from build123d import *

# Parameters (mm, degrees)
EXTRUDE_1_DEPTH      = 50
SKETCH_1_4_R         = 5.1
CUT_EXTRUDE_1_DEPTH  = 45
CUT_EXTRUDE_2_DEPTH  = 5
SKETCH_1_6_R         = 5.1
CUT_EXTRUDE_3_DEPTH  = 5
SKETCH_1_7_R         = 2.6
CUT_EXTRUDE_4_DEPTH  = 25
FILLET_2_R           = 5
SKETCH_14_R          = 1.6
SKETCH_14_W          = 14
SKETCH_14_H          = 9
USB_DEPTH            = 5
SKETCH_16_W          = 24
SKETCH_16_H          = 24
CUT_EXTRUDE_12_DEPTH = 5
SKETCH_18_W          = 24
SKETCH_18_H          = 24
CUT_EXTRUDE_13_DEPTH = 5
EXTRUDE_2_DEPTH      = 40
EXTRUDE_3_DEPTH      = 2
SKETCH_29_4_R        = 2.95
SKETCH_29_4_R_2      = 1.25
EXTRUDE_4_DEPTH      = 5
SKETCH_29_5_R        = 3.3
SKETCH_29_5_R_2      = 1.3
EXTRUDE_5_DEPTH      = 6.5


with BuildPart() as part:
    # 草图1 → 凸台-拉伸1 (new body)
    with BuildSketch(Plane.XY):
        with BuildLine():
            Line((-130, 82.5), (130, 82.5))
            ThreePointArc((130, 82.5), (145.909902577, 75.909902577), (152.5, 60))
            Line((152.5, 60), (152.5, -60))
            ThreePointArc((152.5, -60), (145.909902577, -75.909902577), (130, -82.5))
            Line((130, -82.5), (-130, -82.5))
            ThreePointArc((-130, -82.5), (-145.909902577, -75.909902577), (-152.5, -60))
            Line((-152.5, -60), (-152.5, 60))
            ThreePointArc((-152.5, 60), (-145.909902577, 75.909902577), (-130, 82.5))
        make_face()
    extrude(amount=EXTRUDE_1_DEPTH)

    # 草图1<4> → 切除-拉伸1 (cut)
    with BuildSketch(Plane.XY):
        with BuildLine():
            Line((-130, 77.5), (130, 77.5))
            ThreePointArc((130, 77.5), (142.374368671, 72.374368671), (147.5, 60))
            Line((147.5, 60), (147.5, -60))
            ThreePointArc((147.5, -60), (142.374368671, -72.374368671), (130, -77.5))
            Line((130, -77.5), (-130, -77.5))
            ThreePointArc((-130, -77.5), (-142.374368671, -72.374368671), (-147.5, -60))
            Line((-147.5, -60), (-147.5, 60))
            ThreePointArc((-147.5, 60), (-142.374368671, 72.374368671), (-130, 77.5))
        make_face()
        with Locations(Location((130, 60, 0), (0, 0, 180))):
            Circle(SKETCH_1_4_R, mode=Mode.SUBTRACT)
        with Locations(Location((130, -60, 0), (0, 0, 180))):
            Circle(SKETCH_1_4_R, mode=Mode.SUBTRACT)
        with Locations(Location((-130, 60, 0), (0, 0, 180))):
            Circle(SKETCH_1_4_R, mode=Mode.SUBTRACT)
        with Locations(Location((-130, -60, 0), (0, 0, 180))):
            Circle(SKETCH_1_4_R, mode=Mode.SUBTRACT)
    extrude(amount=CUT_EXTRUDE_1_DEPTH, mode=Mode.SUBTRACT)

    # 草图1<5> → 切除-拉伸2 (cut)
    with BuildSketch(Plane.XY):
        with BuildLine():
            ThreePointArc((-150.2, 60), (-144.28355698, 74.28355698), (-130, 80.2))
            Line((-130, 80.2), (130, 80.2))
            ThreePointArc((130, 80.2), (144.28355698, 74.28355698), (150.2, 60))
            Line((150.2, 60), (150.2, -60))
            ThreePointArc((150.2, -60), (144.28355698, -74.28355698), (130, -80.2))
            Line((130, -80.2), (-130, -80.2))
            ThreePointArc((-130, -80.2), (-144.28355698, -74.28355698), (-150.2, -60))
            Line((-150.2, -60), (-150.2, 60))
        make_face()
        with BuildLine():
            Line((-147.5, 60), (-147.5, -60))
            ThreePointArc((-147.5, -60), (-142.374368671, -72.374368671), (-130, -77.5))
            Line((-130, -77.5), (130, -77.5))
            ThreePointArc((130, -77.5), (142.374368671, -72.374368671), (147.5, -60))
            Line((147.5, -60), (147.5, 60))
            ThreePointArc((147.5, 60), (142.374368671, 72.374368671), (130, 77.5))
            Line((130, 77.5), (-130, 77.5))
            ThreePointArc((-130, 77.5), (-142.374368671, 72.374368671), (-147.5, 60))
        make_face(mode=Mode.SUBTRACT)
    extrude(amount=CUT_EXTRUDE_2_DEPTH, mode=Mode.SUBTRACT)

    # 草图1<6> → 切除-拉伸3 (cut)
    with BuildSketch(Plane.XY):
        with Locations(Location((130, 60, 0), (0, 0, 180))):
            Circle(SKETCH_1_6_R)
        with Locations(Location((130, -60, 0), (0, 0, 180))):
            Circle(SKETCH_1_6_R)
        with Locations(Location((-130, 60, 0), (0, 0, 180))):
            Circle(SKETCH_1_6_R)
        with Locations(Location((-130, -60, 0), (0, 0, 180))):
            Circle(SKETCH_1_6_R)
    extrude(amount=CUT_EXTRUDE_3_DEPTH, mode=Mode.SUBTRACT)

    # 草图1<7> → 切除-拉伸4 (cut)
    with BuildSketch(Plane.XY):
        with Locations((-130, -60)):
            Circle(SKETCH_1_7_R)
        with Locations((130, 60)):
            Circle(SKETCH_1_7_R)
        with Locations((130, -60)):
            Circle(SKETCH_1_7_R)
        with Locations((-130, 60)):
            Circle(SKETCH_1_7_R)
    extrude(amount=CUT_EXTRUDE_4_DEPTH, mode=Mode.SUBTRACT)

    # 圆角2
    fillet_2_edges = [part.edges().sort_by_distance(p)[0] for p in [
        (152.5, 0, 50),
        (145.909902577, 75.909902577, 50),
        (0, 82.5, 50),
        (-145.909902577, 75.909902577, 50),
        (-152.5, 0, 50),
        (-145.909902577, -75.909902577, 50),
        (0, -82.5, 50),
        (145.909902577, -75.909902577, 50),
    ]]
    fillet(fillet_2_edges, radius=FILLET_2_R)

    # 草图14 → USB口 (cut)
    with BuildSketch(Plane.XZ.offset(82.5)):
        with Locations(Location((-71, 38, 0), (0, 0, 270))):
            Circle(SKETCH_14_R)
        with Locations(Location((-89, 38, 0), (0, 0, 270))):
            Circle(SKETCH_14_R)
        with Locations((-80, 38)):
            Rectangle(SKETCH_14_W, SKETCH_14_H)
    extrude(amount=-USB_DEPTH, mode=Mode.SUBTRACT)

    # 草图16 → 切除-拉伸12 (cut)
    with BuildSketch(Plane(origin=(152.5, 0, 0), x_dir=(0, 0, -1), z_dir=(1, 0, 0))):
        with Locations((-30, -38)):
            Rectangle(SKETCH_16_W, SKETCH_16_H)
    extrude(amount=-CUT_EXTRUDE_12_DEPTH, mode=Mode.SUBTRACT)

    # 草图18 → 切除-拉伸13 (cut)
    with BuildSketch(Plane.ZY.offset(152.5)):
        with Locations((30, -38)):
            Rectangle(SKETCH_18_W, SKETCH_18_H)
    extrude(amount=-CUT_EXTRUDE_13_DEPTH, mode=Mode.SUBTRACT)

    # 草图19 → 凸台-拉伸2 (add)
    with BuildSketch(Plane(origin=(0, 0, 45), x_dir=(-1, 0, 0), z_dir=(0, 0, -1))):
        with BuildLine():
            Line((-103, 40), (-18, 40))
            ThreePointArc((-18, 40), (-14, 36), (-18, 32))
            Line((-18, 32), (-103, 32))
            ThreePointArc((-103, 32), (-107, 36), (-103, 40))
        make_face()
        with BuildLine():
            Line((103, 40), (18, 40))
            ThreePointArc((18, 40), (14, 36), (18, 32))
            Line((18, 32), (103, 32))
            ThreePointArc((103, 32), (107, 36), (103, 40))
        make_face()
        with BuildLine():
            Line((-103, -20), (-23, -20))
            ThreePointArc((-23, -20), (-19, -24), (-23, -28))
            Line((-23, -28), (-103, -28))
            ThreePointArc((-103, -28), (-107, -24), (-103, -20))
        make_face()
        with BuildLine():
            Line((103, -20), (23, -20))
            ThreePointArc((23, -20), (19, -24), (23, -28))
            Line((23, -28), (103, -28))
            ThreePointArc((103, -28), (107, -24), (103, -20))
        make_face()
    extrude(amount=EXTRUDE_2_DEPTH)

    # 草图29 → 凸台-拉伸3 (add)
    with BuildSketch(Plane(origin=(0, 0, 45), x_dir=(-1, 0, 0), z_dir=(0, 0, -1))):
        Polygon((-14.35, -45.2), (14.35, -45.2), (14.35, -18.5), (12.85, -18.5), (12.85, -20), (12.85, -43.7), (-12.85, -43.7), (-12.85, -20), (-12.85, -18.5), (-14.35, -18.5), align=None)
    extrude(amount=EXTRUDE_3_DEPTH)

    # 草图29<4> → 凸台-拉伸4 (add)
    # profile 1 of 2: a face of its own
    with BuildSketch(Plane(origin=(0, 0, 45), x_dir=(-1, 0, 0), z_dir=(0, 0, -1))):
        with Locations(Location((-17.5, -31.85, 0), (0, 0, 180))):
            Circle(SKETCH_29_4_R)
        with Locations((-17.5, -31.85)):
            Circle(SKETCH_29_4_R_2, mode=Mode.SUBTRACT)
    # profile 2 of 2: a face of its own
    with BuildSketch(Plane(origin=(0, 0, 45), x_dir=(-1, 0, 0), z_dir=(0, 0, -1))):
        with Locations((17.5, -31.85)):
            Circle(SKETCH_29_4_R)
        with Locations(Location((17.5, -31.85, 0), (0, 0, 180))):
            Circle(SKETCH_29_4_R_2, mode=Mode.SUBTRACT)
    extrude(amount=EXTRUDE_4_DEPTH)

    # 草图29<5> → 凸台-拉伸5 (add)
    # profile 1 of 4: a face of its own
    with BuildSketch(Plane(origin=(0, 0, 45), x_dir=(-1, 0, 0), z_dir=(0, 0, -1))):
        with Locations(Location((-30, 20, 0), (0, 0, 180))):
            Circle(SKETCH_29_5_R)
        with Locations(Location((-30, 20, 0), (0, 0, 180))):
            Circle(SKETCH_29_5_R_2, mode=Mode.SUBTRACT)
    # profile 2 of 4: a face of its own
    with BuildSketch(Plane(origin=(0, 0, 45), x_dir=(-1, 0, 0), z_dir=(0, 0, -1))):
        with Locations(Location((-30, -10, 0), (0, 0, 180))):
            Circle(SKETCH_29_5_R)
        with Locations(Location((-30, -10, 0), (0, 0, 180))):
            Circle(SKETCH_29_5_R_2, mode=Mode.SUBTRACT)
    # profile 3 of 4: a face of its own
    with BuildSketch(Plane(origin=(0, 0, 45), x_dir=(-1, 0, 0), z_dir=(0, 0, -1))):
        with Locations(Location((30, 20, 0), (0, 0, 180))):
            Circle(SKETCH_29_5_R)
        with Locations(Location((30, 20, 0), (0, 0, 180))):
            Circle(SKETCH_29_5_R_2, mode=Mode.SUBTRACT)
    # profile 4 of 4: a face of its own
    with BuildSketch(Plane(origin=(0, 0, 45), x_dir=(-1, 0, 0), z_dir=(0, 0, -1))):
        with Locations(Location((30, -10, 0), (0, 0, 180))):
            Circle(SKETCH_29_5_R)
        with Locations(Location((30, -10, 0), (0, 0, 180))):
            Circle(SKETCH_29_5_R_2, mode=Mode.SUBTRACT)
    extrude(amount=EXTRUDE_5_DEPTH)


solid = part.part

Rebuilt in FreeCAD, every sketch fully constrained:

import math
import FreeCAD as App
import Part
import Sketcher

V = App.Vector
Q = App.Units.Quantity


def edges_at(feature, points):
    """Names of the edges that pass closest to the given points."""
    edges = feature.Shape.Edges
    near = lambda p: min(range(len(edges)), key=lambda i: edges[i].distToShape(Part.Vertex(*p))[0])
    return sorted({f"Edge{near(p) + 1}" for p in points})

doc = App.newDocument("Part")
body = doc.addObject("PartDesign::Body", "Body")

# Sketch on XY plane
sketch1 = body.newObject("Sketcher::SketchObject", "Sketch")
sketch1.AttachmentSupport = (doc.getObject("XY_Plane"), [""])
sketch1.MapMode = "FlatFace"
sketch1.addGeometry([
    Part.LineSegment(V(130, 82, 0), V(-130, 82, 0)),  # 0
    Part.ArcOfCircle(Part.Circle(V(-130, 60, 0), V(0, 0, 1), 22), math.radians(90), math.radians(180)),  # 1
    Part.LineSegment(V(-152, 60, 0), V(-152, -60, 0)),  # 2
    Part.ArcOfCircle(Part.Circle(V(-130, -60, 0), V(0, 0, 1), 22), math.radians(180), math.radians(270)),  # 3
    Part.LineSegment(V(-130, -82, 0), V(130, -82, 0)),  # 4
    Part.ArcOfCircle(Part.Circle(V(130, -60, 0), V(0, 0, 1), 22), math.radians(-90), math.radians(0)),  # 5
    Part.LineSegment(V(152, -60, 0), V(152, 60, 0)),  # 6
    Part.ArcOfCircle(Part.Circle(V(130, 60, 0), V(0, 0, 1), 22), math.radians(0), math.radians(90)),  # 7
], False)
sketch1.addConstraint([
    Sketcher.Constraint("Tangent", 0, 2, 1, 1),
    Sketcher.Constraint("Tangent", 1, 2, 2, 1),
    Sketcher.Constraint("Tangent", 2, 2, 3, 1),
    Sketcher.Constraint("Tangent", 3, 2, 4, 1),
    Sketcher.Constraint("Tangent", 4, 2, 5, 1),
    Sketcher.Constraint("Tangent", 5, 2, 6, 1),
    Sketcher.Constraint("Tangent", 6, 2, 7, 1),
    Sketcher.Constraint("Tangent", 7, 2, 0, 1),
    Sketcher.Constraint("Horizontal", 0),
    Sketcher.Constraint("Vertical", 2),
    Sketcher.Constraint("Horizontal", 4),
    Sketcher.Constraint("Vertical", 6),
    Sketcher.Constraint("Equal", 1, 3),
    Sketcher.Constraint("Equal", 3, 5),
    Sketcher.Constraint("Equal", 5, 7),
    Sketcher.Constraint("Symmetric", 1, 3, 5, 3, -1, 1),
    Sketcher.Constraint("Radius", 1, Q("22.5 mm")),
    Sketcher.Constraint("DistanceX", 0, 2, 0, 1, Q("260 mm")),
    Sketcher.Constraint("DistanceY", 2, 2, 2, 1, Q("120 mm")),
])
pad1 = body.newObject("PartDesign::Pad", "Pad")
pad1.Profile = sketch1
pad1.Length = 50

# Sketch on XY plane
sketch2 = body.newObject("Sketcher::SketchObject", "Sketch001")
sketch2.AttachmentSupport = (doc.getObject("XY_Plane"), [""])
sketch2.MapMode = "FlatFace"
sketch2.addGeometry([
    Part.LineSegment(V(130, 78, 0), V(-130, 78, 0)),  # 0
    Part.ArcOfCircle(Part.Circle(V(-130, 60, 0), V(0, 0, 1), 17), math.radians(90), math.radians(180)),  # 1
    Part.LineSegment(V(-148, 60, 0), V(-148, -60, 0)),  # 2
    Part.ArcOfCircle(Part.Circle(V(-130, -60, 0), V(0, 0, 1), 17), math.radians(180), math.radians(270)),  # 3
    Part.LineSegment(V(-130, -78, 0), V(130, -78, 0)),  # 4
    Part.ArcOfCircle(Part.Circle(V(130, -60, 0), V(0, 0, 1), 17), math.radians(-90), math.radians(0)),  # 5
    Part.LineSegment(V(148, -60, 0), V(148, 60, 0)),  # 6
    Part.ArcOfCircle(Part.Circle(V(130, 60, 0), V(0, 0, 1), 17), math.radians(0), math.radians(90)),  # 7
    Part.Circle(V(130, -60, 0), V(0, 0, 1), 5),  # 8
    Part.Circle(V(-130, -60, 0), V(0, 0, 1), 5),  # 9
    Part.Circle(V(130, 60, 0), V(0, 0, 1), 5),  # 10
    Part.Circle(V(-130, 60, 0), V(0, 0, 1), 5),  # 11
], False)
sketch2.addConstraint([
    Sketcher.Constraint("Tangent", 0, 2, 1, 1),
    Sketcher.Constraint("Tangent", 1, 2, 2, 1),
    Sketcher.Constraint("Tangent", 2, 2, 3, 1),
    Sketcher.Constraint("Tangent", 3, 2, 4, 1),
    Sketcher.Constraint("Tangent", 4, 2, 5, 1),
    Sketcher.Constraint("Tangent", 5, 2, 6, 1),
    Sketcher.Constraint("Tangent", 6, 2, 7, 1),
    Sketcher.Constraint("Tangent", 7, 2, 0, 1),
    Sketcher.Constraint("Horizontal", 0),
    Sketcher.Constraint("Vertical", 2),
    Sketcher.Constraint("Horizontal", 4),
    Sketcher.Constraint("Vertical", 6),
    Sketcher.Constraint("Coincident", 8, 3, 5, 3),
    Sketcher.Constraint("Coincident", 9, 3, 3, 3),
    Sketcher.Constraint("Coincident", 10, 3, 7, 3),
    Sketcher.Constraint("Coincident", 11, 3, 1, 3),
    Sketcher.Constraint("Equal", 1, 3),
    Sketcher.Constraint("Equal", 3, 5),
    Sketcher.Constraint("Equal", 5, 7),
    Sketcher.Constraint("Equal", 8, 9),
    Sketcher.Constraint("Equal", 9, 10),
    Sketcher.Constraint("Equal", 10, 11),
    Sketcher.Constraint("Symmetric", 1, 3, 5, 3, -1, 1),
    Sketcher.Constraint("Diameter", 8, Q("10.2 mm")),
    Sketcher.Constraint("Radius", 1, Q("17.5 mm")),
    Sketcher.Constraint("DistanceX", 0, 2, 0, 1, Q("260 mm")),
    Sketcher.Constraint("DistanceY", 2, 2, 2, 1, Q("120 mm")),
])
pocket1 = body.newObject("PartDesign::Pocket", "Pocket")
pocket1.Profile = sketch2
pocket1.Length = 45
pocket1.Reversed = True

# Sketch on XY plane
sketch3 = body.newObject("Sketcher::SketchObject", "Sketch002")
sketch3.AttachmentSupport = (doc.getObject("XY_Plane"), [""])
sketch3.MapMode = "FlatFace"
sketch3.addGeometry([
    Part.ArcOfCircle(Part.Circle(V(-130, 60, 0), V(0, 0, 1), 20), math.radians(90), math.radians(180)),  # 0
    Part.LineSegment(V(-150, 60, 0), V(-150, -60, 0)),  # 1
    Part.ArcOfCircle(Part.Circle(V(-130, -60, 0), V(0, 0, 1), 20), math.radians(180), math.radians(270)),  # 2
    Part.LineSegment(V(-130, -80, 0), V(130, -80, 0)),  # 3
    Part.ArcOfCircle(Part.Circle(V(130, -60, 0), V(0, 0, 1), 20), math.radians(-90), math.radians(0)),  # 4
    Part.LineSegment(V(150, -60, 0), V(150, 60, 0)),  # 5
    Part.ArcOfCircle(Part.Circle(V(130, 60, 0), V(0, 0, 1), 20), math.radians(0), math.radians(90)),  # 6
    Part.LineSegment(V(130, 80, 0), V(-130, 80, 0)),  # 7
    Part.ArcOfCircle(Part.Circle(V(-130, 60, 0), V(0, 0, 1), 17), math.radians(90), math.radians(180)),  # 8
    Part.LineSegment(V(-130, 78, 0), V(130, 78, 0)),  # 9
    Part.ArcOfCircle(Part.Circle(V(130, 60, 0), V(0, 0, 1), 17), math.radians(0), math.radians(90)),  # 10
    Part.LineSegment(V(148, 60, 0), V(148, -60, 0)),  # 11
    Part.ArcOfCircle(Part.Circle(V(130, -60, 0), V(0, 0, 1), 17), math.radians(-90), math.radians(0)),  # 12
    Part.LineSegment(V(130, -78, 0), V(-130, -78, 0)),  # 13
    Part.ArcOfCircle(Part.Circle(V(-130, -60, 0), V(0, 0, 1), 17), math.radians(180), math.radians(270)),  # 14
    Part.LineSegment(V(-148, -60, 0), V(-148, 60, 0)),  # 15
], False)
sketch3.addConstraint([
    Sketcher.Constraint("Tangent", 0, 2, 1, 1),
    Sketcher.Constraint("Tangent", 1, 2, 2, 1),
    Sketcher.Constraint("Tangent", 2, 2, 3, 1),
    Sketcher.Constraint("Tangent", 3, 2, 4, 1),
    Sketcher.Constraint("Tangent", 4, 2, 5, 1),
    Sketcher.Constraint("Tangent", 5, 2, 6, 1),
    Sketcher.Constraint("Tangent", 6, 2, 7, 1),
    Sketcher.Constraint("Tangent", 7, 2, 0, 1),
    Sketcher.Constraint("Tangent", 8, 1, 9, 1),
    Sketcher.Constraint("Tangent", 9, 2, 10, 2),
    Sketcher.Constraint("Tangent", 10, 1, 11, 1),
    Sketcher.Constraint("Tangent", 11, 2, 12, 2),
    Sketcher.Constraint("Tangent", 12, 1, 13, 1),
    Sketcher.Constraint("Tangent", 13, 2, 14, 2),
    Sketcher.Constraint("Tangent", 14, 1, 15, 1),
    Sketcher.Constraint("Tangent", 15, 2, 8, 2),
    Sketcher.Constraint("Vertical", 1),
    Sketcher.Constraint("Horizontal", 3),
    Sketcher.Constraint("Vertical", 5),
    Sketcher.Constraint("Horizontal", 7),
    Sketcher.Constraint("Horizontal", 9),
    Sketcher.Constraint("Vertical", 11),
    Sketcher.Constraint("Horizontal", 13),
    Sketcher.Constraint("Vertical", 15),
    Sketcher.Constraint("Coincident", 8, 3, 0, 3),
    Sketcher.Constraint("Coincident", 10, 3, 6, 3),
    Sketcher.Constraint("Coincident", 12, 3, 4, 3),
    Sketcher.Constraint("Equal", 0, 2),
    Sketcher.Constraint("Equal", 2, 4),
    Sketcher.Constraint("Equal", 4, 6),
    Sketcher.Constraint("Equal", 12, 14),
    Sketcher.Constraint("Symmetric", 0, 3, 4, 3, -1, 1),
    Sketcher.Constraint("Radius", 0, Q("20.2 mm")),
    Sketcher.Constraint("Radius", 8, Q("17.5 mm")),
    Sketcher.Constraint("DistanceX", 3, 1, 3, 2, Q("260 mm")),
    Sketcher.Constraint("DistanceY", 1, 2, 1, 1, Q("120 mm")),
])
pocket2 = body.newObject("PartDesign::Pocket", "Pocket001")
pocket2.Profile = sketch3
pocket2.Length = 5
pocket2.Reversed = True

# Sketch on XY plane
sketch4 = body.newObject("Sketcher::SketchObject", "Sketch003")
sketch4.AttachmentSupport = (doc.getObject("XY_Plane"), [""])
sketch4.MapMode = "FlatFace"
sketch4.addGeometry([
    Part.Circle(V(130, 60, 0), V(0, 0, 1), 5),
    Part.Circle(V(130, -60, 0), V(0, 0, 1), 5),
    Part.Circle(V(-130, 60, 0), V(0, 0, 1), 5),
    Part.Circle(V(-130, -60, 0), V(0, 0, 1), 5),
], False)
sketch4.addConstraint([
    Sketcher.Constraint("Equal", 0, 1),
    Sketcher.Constraint("Equal", 1, 2),
    Sketcher.Constraint("Equal", 2, 3),
    Sketcher.Constraint("Symmetric", 1, 3, 2, 3, -1, 1),
    Sketcher.Constraint("Symmetric", 0, 3, 3, 3, -1, 1),
    Sketcher.Constraint("Symmetric", 0, 3, 2, 3, -2),
    Sketcher.Constraint("Diameter", 0, Q("10.2 mm")),
    Sketcher.Constraint("DistanceX", -1, 1, 0, 3, Q("130 mm")),
    Sketcher.Constraint("DistanceY", -1, 1, 0, 3, Q("60 mm")),
])
pocket3 = body.newObject("PartDesign::Pocket", "Pocket002")
pocket3.Profile = sketch4
pocket3.Length = 5
pocket3.Reversed = True

# Sketch on XY plane
sketch5 = body.newObject("Sketcher::SketchObject", "Sketch004")
sketch5.AttachmentSupport = (doc.getObject("XY_Plane"), [""])
sketch5.MapMode = "FlatFace"
sketch5.addGeometry([
    Part.Circle(V(-130, -60, 0), V(0, 0, 1), 2.6),
    Part.Circle(V(130, 60, 0), V(0, 0, 1), 2.6),
    Part.Circle(V(130, -60, 0), V(0, 0, 1), 2.6),
    Part.Circle(V(-130, 60, 0), V(0, 0, 1), 2.6),
], False)
sketch5.addConstraint([
    Sketcher.Constraint("Equal", 0, 1),
    Sketcher.Constraint("Equal", 1, 2),
    Sketcher.Constraint("Equal", 2, 3),
    Sketcher.Constraint("Symmetric", 0, 3, 1, 3, -1, 1),
    Sketcher.Constraint("Symmetric", 2, 3, 3, 3, -1, 1),
    Sketcher.Constraint("Symmetric", 0, 3, 2, 3, -2),
    Sketcher.Constraint("Diameter", 0, Q("5.2 mm")),
    Sketcher.Constraint("DistanceX", 0, 3, -1, 1, Q("130 mm")),
    Sketcher.Constraint("DistanceY", 0, 3, -1, 1, Q("60 mm")),
])
pocket4 = body.newObject("PartDesign::Pocket", "Pocket003")
pocket4.Profile = sketch5
pocket4.Length = 25
pocket4.Reversed = True
doc.recompute()

fillet = body.newObject("PartDesign::Fillet", "Fillet")
fillet.Base = (pocket4, edges_at(pocket4, [
    (152.5, 0, 50),
    (145.91, 75.91, 50),
    (0, 82.5, 50),
    (-145.91, 75.91, 50),
    (-152.5, 0, 50),
    (-145.91, -75.91, 50),
    (0, -82.5, 50),
    (145.91, -75.91, 50),
]))
fillet.Radius = 5

# Sketch on XZ plane
sketch6 = body.newObject("Sketcher::SketchObject", "Sketch005")
sketch6.AttachmentSupport = (doc.getObject("XZ_Plane"), [""])
sketch6.MapMode = "FlatFace"
sketch6.AttachmentOffset = App.Placement(V(0, 0, 82.5), App.Rotation())
sketch6.addGeometry([
    Part.Circle(V(-71, 38, 0), V(0, 0, 1), 1.6),  # 0
    Part.Circle(V(-89, 38, 0), V(0, 0, 1), 1.6),  # 1
    Part.LineSegment(V(-87, 42.5, 0), V(-87, 33.5, 0)),  # 2
    Part.LineSegment(V(-87, 33.5, 0), V(-73, 33.5, 0)),  # 3
    Part.LineSegment(V(-73, 33.5, 0), V(-73, 42.5, 0)),  # 4
    Part.LineSegment(V(-73, 42.5, 0), V(-87, 42.5, 0)),  # 5
], False)
sketch6.addConstraint([
    Sketcher.Constraint("Coincident", 2, 2, 3, 1),
    Sketcher.Constraint("Coincident", 3, 2, 4, 1),
    Sketcher.Constraint("Coincident", 4, 2, 5, 1),
    Sketcher.Constraint("Coincident", 5, 2, 2, 1),
    Sketcher.Constraint("Vertical", 2),
    Sketcher.Constraint("Horizontal", 3),
    Sketcher.Constraint("Vertical", 4),
    Sketcher.Constraint("Horizontal", 5),
    Sketcher.Constraint("Equal", 0, 1),
    Sketcher.Constraint("Horizontal", 0, 3, 1, 3),
    Sketcher.Constraint("Diameter", 0, Q("3.2 mm")),
    Sketcher.Constraint("DistanceX", 3, 1, 3, 2, Q("14 mm")),
    Sketcher.Constraint("DistanceY", 2, 2, 2, 1, Q("9 mm")),
    Sketcher.Constraint("DistanceX", 0, 3, -1, 1, Q("71 mm")),
    Sketcher.Constraint("DistanceY", -1, 1, 0, 3, Q("38 mm")),
    Sketcher.Constraint("DistanceX", 1, 3, -1, 1, Q("89 mm")),
    Sketcher.Constraint("DistanceX", 2, 2, -1, 1, Q("87 mm")),
    Sketcher.Constraint("DistanceY", -1, 1, 2, 2, Q("33.5 mm")),
])
pocket5 = body.newObject("PartDesign::Pocket", "Pocket004")
pocket5.Profile = sketch6
pocket5.Length = 5

# Sketch on YZ plane
sketch7 = body.newObject("Sketcher::SketchObject", "Sketch006")
sketch7.AttachmentSupport = (doc.getObject("YZ_Plane"), [""])
sketch7.MapMode = "FlatFace"
sketch7.AttachmentOffset = App.Placement(V(0, 0, 152.5), App.Rotation())
sketch7.addGeometry([
    Part.LineSegment(V(-26, 42, 0), V(-50, 42, 0)),
    Part.LineSegment(V(-50, 42, 0), V(-50, 18, 0)),
    Part.LineSegment(V(-50, 18, 0), V(-26, 18, 0)),
    Part.LineSegment(V(-26, 18, 0), V(-26, 42, 0)),
], False)
sketch7.addConstraint([
    Sketcher.Constraint("Coincident", 0, 2, 1, 1),
    Sketcher.Constraint("Coincident", 1, 2, 2, 1),
    Sketcher.Constraint("Coincident", 2, 2, 3, 1),
    Sketcher.Constraint("Coincident", 3, 2, 0, 1),
    Sketcher.Constraint("Horizontal", 0),
    Sketcher.Constraint("Vertical", 1),
    Sketcher.Constraint("Horizontal", 2),
    Sketcher.Constraint("Vertical", 3),
    Sketcher.Constraint("Equal", 2, 1),
    Sketcher.Constraint("DistanceX", 0, 2, 0, 1, Q("24 mm")),
    Sketcher.Constraint("DistanceX", 0, 2, -1, 1, Q("50 mm")),
    Sketcher.Constraint("DistanceY", -1, 1, 0, 2, Q("42 mm")),
])
pocket6 = body.newObject("PartDesign::Pocket", "Pocket005")
pocket6.Profile = sketch7
pocket6.Length = 5

# Sketch on YZ plane
sketch8 = body.newObject("Sketcher::SketchObject", "Sketch007")
sketch8.AttachmentSupport = (doc.getObject("YZ_Plane"), [""])
sketch8.MapMode = "FlatFace"
sketch8.AttachmentOffset = App.Placement(V(0, 0, -152.5), App.Rotation())
sketch8.addGeometry([
    Part.LineSegment(V(-26, 18, 0), V(-50, 18, 0)),
    Part.LineSegment(V(-50, 18, 0), V(-50, 42, 0)),
    Part.LineSegment(V(-50, 42, 0), V(-26, 42, 0)),
    Part.LineSegment(V(-26, 42, 0), V(-26, 18, 0)),
], False)
sketch8.addConstraint([
    Sketcher.Constraint("Coincident", 0, 2, 1, 1),
    Sketcher.Constraint("Coincident", 1, 2, 2, 1),
    Sketcher.Constraint("Coincident", 2, 2, 3, 1),
    Sketcher.Constraint("Coincident", 3, 2, 0, 1),
    Sketcher.Constraint("Horizontal", 0),
    Sketcher.Constraint("Vertical", 1),
    Sketcher.Constraint("Horizontal", 2),
    Sketcher.Constraint("Vertical", 3),
    Sketcher.Constraint("Equal", 2, 1),
    Sketcher.Constraint("DistanceX", 0, 2, 0, 1, Q("24 mm")),
    Sketcher.Constraint("DistanceX", 0, 2, -1, 1, Q("50 mm")),
    Sketcher.Constraint("DistanceY", -1, 1, 0, 2, Q("18 mm")),
])
pocket7 = body.newObject("PartDesign::Pocket", "Pocket006")
pocket7.Profile = sketch8
pocket7.Length = 5
pocket7.Reversed = True

# Sketch on XY plane
sketch9 = body.newObject("Sketcher::SketchObject", "Sketch008")
sketch9.AttachmentSupport = (doc.getObject("XY_Plane"), [""])
sketch9.MapMode = "FlatFace"
sketch9.AttachmentOffset = App.Placement(V(0, 0, 45), App.Rotation())
sketch9.addGeometry([
    Part.LineSegment(V(18, 40, 0), V(103, 40, 0)),  # 0
    Part.ArcOfCircle(Part.Circle(V(103, 36, 0), V(0, 0, 1), 4), math.radians(-90), math.radians(90)),  # 1
    Part.LineSegment(V(103, 32, 0), V(18, 32, 0)),  # 2
    Part.ArcOfCircle(Part.Circle(V(18, 36, 0), V(0, 0, 1), 4), math.radians(90), math.radians(270)),  # 3
    Part.LineSegment(V(-103, 40, 0), V(-18, 40, 0)),  # 4
    Part.ArcOfCircle(Part.Circle(V(-18, 36, 0), V(0, 0, 1), 4), math.radians(-90), math.radians(90)),  # 5
    Part.LineSegment(V(-18, 32, 0), V(-103, 32, 0)),  # 6
    Part.ArcOfCircle(Part.Circle(V(-103, 36, 0), V(0, 0, 1), 4), math.radians(90), math.radians(270)),  # 7
    Part.LineSegment(V(23, -20, 0), V(103, -20, 0)),  # 8
    Part.ArcOfCircle(Part.Circle(V(103, -24, 0), V(0, 0, 1), 4), math.radians(-90), math.radians(90)),  # 9
    Part.LineSegment(V(103, -28, 0), V(23, -28, 0)),  # 10
    Part.ArcOfCircle(Part.Circle(V(23, -24, 0), V(0, 0, 1), 4), math.radians(90), math.radians(270)),  # 11
    Part.LineSegment(V(-103, -20, 0), V(-23, -20, 0)),  # 12
    Part.ArcOfCircle(Part.Circle(V(-23, -24, 0), V(0, 0, 1), 4), math.radians(-90), math.radians(90)),  # 13
    Part.LineSegment(V(-23, -28, 0), V(-103, -28, 0)),  # 14
    Part.ArcOfCircle(Part.Circle(V(-103, -24, 0), V(0, 0, 1), 4), math.radians(90), math.radians(270)),  # 15
], False)
sketch9.addConstraint([
    Sketcher.Constraint("Tangent", 0, 2, 1, 2),
    Sketcher.Constraint("Tangent", 1, 1, 2, 1),
    Sketcher.Constraint("Tangent", 2, 2, 3, 2),
    Sketcher.Constraint("Tangent", 3, 1, 0, 1),
    Sketcher.Constraint("Tangent", 4, 2, 5, 2),
    Sketcher.Constraint("Tangent", 5, 1, 6, 1),
    Sketcher.Constraint("Tangent", 6, 2, 7, 2),
    Sketcher.Constraint("Tangent", 7, 1, 4, 1),
    Sketcher.Constraint("Tangent", 8, 2, 9, 2),
    Sketcher.Constraint("Tangent", 9, 1, 10, 1),
    Sketcher.Constraint("Tangent", 10, 2, 11, 2),
    Sketcher.Constraint("Tangent", 11, 1, 8, 1),
    Sketcher.Constraint("Tangent", 12, 2, 13, 2),
    Sketcher.Constraint("Tangent", 13, 1, 14, 1),
    Sketcher.Constraint("Tangent", 14, 2, 15, 2),
    Sketcher.Constraint("Tangent", 15, 1, 12, 1),
    Sketcher.Constraint("Horizontal", 0),
    Sketcher.Constraint("Horizontal", 2),
    Sketcher.Constraint("Horizontal", 4),
    Sketcher.Constraint("Horizontal", 6),
    Sketcher.Constraint("Horizontal", 8),
    Sketcher.Constraint("Horizontal", 10),
    Sketcher.Constraint("Horizontal", 12),
    Sketcher.Constraint("Horizontal", 14),
    Sketcher.Constraint("Equal", 3, 5),
    Sketcher.Constraint("Equal", 7, 9),
    Sketcher.Constraint("Equal", 11, 13),
    Sketcher.Constraint("Symmetric", 3, 3, 5, 3, -2),
    Sketcher.Constraint("Symmetric", 11, 3, 13, 3, -2),
    Sketcher.Constraint("Vertical", 1, 3, 9, 3),
    Sketcher.Constraint("Vertical", 7, 3, 15, 3),
    Sketcher.Constraint("Equal", 2, 4),
    Sketcher.Constraint("Radius", 1, Q("4 mm")),
    Sketcher.Constraint("DistanceX", 0, 1, 0, 2, Q("85 mm")),
    Sketcher.Constraint("DistanceX", 8, 1, 8, 2, Q("80 mm")),
    Sketcher.Constraint("DistanceX", -1, 1, 1, 3, Q("103 mm")),
    Sketcher.Constraint("DistanceY", -1, 1, 1, 3, Q("36 mm")),
    Sketcher.Constraint("DistanceY", 9, 3, -1, 1, Q("24 mm")),
])
pad2 = body.newObject("PartDesign::Pad", "Pad001")
pad2.Profile = sketch9
pad2.Length = 40
pad2.Reversed = True

# Sketch on XY plane
sketch10 = body.newObject("Sketcher::SketchObject", "Sketch009")
sketch10.AttachmentSupport = (doc.getObject("XY_Plane"), [""])
sketch10.MapMode = "FlatFace"
sketch10.AttachmentOffset = App.Placement(V(0, 0, 45), App.Rotation())
sketch10.addGeometry([
    Part.LineSegment(V(14.3, -45.2, 0), V(-14.3, -45.2, 0)),  # 0
    Part.LineSegment(V(-14.3, -45.2, 0), V(-14.3, -18.5, 0)),  # 1
    Part.LineSegment(V(-14.3, -18.5, 0), V(-12.8, -18.5, 0)),  # 2
    Part.LineSegment(V(-12.8, -18.5, 0), V(-12.8, -43.7, 0)),  # 3
    Part.LineSegment(V(-12.8, -43.7, 0), V(12.8, -43.7, 0)),  # 4
    Part.LineSegment(V(12.8, -43.7, 0), V(12.8, -18.5, 0)),  # 5
    Part.LineSegment(V(12.8, -18.5, 0), V(14.3, -18.5, 0)),  # 6
    Part.LineSegment(V(14.3, -18.5, 0), V(14.3, -45.2, 0)),  # 7
], False)
sketch10.addConstraint([
    Sketcher.Constraint("Coincident", 0, 2, 1, 1),
    Sketcher.Constraint("Coincident", 1, 2, 2, 1),
    Sketcher.Constraint("Coincident", 2, 2, 3, 1),
    Sketcher.Constraint("Coincident", 3, 2, 4, 1),
    Sketcher.Constraint("Coincident", 4, 2, 5, 1),
    Sketcher.Constraint("Coincident", 5, 2, 6, 1),
    Sketcher.Constraint("Coincident", 6, 2, 7, 1),
    Sketcher.Constraint("Coincident", 7, 2, 0, 1),
    Sketcher.Constraint("Horizontal", 0),
    Sketcher.Constraint("Vertical", 1),
    Sketcher.Constraint("Horizontal", 2),
    Sketcher.Constraint("Vertical", 3),
    Sketcher.Constraint("Horizontal", 4),
    Sketcher.Constraint("Vertical", 5),
    Sketcher.Constraint("Horizontal", 6),
    Sketcher.Constraint("Vertical", 7),
    Sketcher.Constraint("Symmetric", 2, 2, 5, 2, -2),
    Sketcher.Constraint("Equal", 2, 6),
    Sketcher.Constraint("DistanceX", 0, 2, 0, 1, Q("28.7 mm")),
    Sketcher.Constraint("DistanceX", 2, 1, 2, 2, Q("1.5 mm")),
    Sketcher.Constraint("DistanceY", 1, 1, 1, 2, Q("26.7 mm")),
    Sketcher.Constraint("DistanceY", 3, 2, 3, 1, Q("25.2 mm")),
    Sketcher.Constraint("DistanceY", 0, 2, -1, 1, Q("45.2 mm")),
])
pad3 = body.newObject("PartDesign::Pad", "Pad002")
pad3.Profile = sketch10
pad3.Length = 2
pad3.Reversed = True

# Sketch on XY plane
sketch11 = body.newObject("Sketcher::SketchObject", "Sketch010")
sketch11.AttachmentSupport = (doc.getObject("XY_Plane"), [""])
sketch11.MapMode = "FlatFace"
sketch11.AttachmentOffset = App.Placement(V(0, 0, 45), App.Rotation())
sketch11.addGeometry([
    Part.Circle(V(17.5, -31.9, 0), V(0, 0, 1), 3),
    Part.Circle(V(17.5, -31.9, 0), V(0, 0, 1), 1.2),
    Part.Circle(V(-17.5, -31.9, 0), V(0, 0, 1), 3),
    Part.Circle(V(-17.5, -31.9, 0), V(0, 0, 1), 1.2),
], False)
sketch11.addConstraint([
    Sketcher.Constraint("Coincident", 1, 3, 0, 3),
    Sketcher.Constraint("Coincident", 3, 3, 2, 3),
    Sketcher.Constraint("Equal", 0, 2),
    Sketcher.Constraint("Equal", 1, 3),
    Sketcher.Constraint("Symmetric", 0, 3, 2, 3, -2),
    Sketcher.Constraint("Diameter", 0, Q("5.9 mm")),
    Sketcher.Constraint("Diameter", 1, Q("2.5 mm")),
    Sketcher.Constraint("DistanceX", 2, 3, 0, 3, Q("35 mm")),
    Sketcher.Constraint("DistanceY", 0, 3, -1, 1, Q("31.85 mm")),
])
pad4 = body.newObject("PartDesign::Pad", "Pad003")
pad4.Profile = sketch11
pad4.Length = 5
pad4.Reversed = True

# Sketch on XY plane
sketch12 = body.newObject("Sketcher::SketchObject", "Sketch011")
sketch12.AttachmentSupport = (doc.getObject("XY_Plane"), [""])
sketch12.MapMode = "FlatFace"
sketch12.AttachmentOffset = App.Placement(V(0, 0, 45), App.Rotation())
sketch12.addGeometry([
    Part.Circle(V(30, 20, 0), V(0, 0, 1), 3.3),  # 0
    Part.Circle(V(30, 20, 0), V(0, 0, 1), 1.3),  # 1
    Part.Circle(V(30, -10, 0), V(0, 0, 1), 3.3),  # 2
    Part.Circle(V(30, -10, 0), V(0, 0, 1), 1.3),  # 3
    Part.Circle(V(-30, 20, 0), V(0, 0, 1), 3.3),  # 4
    Part.Circle(V(-30, 20, 0), V(0, 0, 1), 1.3),  # 5
    Part.Circle(V(-30, -10, 0), V(0, 0, 1), 3.3),  # 6
    Part.Circle(V(-30, -10, 0), V(0, 0, 1), 1.3),  # 7
], False)
sketch12.addConstraint([
    Sketcher.Constraint("Coincident", 1, 3, 0, 3),
    Sketcher.Constraint("Coincident", 3, 3, 2, 3),
    Sketcher.Constraint("Coincident", 5, 3, 4, 3),
    Sketcher.Constraint("Coincident", 7, 3, 6, 3),
    Sketcher.Constraint("Equal", 0, 2),
    Sketcher.Constraint("Equal", 1, 3),
    Sketcher.Constraint("Equal", 2, 4),
    Sketcher.Constraint("Equal", 3, 5),
    Sketcher.Constraint("Equal", 4, 6),
    Sketcher.Constraint("Equal", 5, 7),
    Sketcher.Constraint("Symmetric", 0, 3, 4, 3, -2),
    Sketcher.Constraint("Symmetric", 2, 3, 6, 3, -2),
    Sketcher.Constraint("Vertical", 1, 3, 2, 3),
    Sketcher.Constraint("Diameter", 0, Q("6.6 mm")),
    Sketcher.Constraint("Diameter", 1, Q("2.6 mm")),
    Sketcher.Constraint("DistanceX", -1, 1, 0, 3, Q("30 mm")),
    Sketcher.Constraint("DistanceY", -1, 1, 0, 3, Q("20 mm")),
    Sketcher.Constraint("DistanceY", 2, 3, -1, 1, Q("10 mm")),
])
pad5 = body.newObject("PartDesign::Pad", "Pad004")
pad5.Profile = sketch12
pad5.Length = 6.5
pad5.Reversed = True

doc.recompute()
